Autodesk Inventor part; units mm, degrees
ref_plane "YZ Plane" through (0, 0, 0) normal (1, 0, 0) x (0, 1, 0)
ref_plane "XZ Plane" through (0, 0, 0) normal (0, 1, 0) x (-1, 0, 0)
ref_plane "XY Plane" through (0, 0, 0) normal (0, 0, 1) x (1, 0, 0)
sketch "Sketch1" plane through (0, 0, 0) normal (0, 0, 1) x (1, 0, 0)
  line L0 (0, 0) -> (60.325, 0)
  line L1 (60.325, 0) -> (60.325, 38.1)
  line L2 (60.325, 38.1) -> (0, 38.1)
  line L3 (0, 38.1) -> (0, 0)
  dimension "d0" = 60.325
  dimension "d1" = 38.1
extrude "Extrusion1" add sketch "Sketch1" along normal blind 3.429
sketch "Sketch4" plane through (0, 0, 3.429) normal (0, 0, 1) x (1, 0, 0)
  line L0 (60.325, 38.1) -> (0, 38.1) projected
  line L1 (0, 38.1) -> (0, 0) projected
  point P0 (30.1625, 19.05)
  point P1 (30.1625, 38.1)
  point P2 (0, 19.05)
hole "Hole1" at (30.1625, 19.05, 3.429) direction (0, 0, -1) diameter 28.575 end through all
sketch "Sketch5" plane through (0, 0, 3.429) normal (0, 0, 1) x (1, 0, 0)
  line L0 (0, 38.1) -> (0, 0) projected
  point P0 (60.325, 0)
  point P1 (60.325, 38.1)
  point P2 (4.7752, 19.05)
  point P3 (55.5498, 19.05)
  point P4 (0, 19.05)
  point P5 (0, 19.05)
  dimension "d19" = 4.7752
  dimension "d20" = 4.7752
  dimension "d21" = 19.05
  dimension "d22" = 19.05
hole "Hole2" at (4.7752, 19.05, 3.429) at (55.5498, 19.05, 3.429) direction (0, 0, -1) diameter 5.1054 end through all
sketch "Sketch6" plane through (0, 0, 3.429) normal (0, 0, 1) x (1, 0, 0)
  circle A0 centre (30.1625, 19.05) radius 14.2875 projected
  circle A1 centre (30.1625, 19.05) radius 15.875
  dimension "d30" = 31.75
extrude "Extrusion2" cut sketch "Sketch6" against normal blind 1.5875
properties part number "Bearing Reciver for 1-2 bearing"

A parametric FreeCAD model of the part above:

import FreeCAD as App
import Part
import Sketcher
Q = App.Units.Quantity


def add_polygon(sketch, points):
    """Adds a closed chain of lines whose ends are joined by coincident constraints."""
    first, n = sketch.GeometryCount, len(points)
    for a, b in zip(points, points[1:] + points[:1]):
        sketch.addGeometry(Part.LineSegment(App.Vector(*a, 0), App.Vector(*b, 0)), False)
    for i in range(n):
        sketch.addConstraint(Sketcher.Constraint("Coincident", first + i, 2, first + (i + 1) % n, 1))

doc = App.newDocument("Part")
body = doc.addObject("PartDesign::Body", "Body")

# Sketch on XY plane
sketch1 = doc.addObject("Sketcher::SketchObject", "Sketch")
body.addObject(sketch1)
sketch1.AttachmentSupport = (doc.XY_Plane, [""])
sketch1.MapMode = "FlatFace"
add_polygon(sketch1, [(0, 38), (0, 0), (60, 0), (60, 38)])  # lines 0-3
sketch1.addConstraint([
    Sketcher.Constraint("Vertical", 0),
    Sketcher.Constraint("Horizontal", 1),
    Sketcher.Constraint("Vertical", 2),
    Sketcher.Constraint("Horizontal", 3),
    Sketcher.Constraint("Coincident", 0, 2, -1, 1),
    Sketcher.Constraint("DistanceY", 0, 2, 0, 1, Q("1.5 in")),
    Sketcher.Constraint("DistanceX", 1, 1, 1, 2, Q("2.375 in")),
])
pad1 = doc.addObject("PartDesign::Pad", "Pad")
body.addObject(pad1)
pad1.Profile = sketch1
pad1.Length = Q("0.135 in")

# Sketch on XY plane
sketch2 = doc.addObject("Sketcher::SketchObject", "Sketch001")
body.addObject(sketch2)
sketch2.AttachmentSupport = (doc.XY_Plane, [""])
sketch2.MapMode = "FlatFace"
sketch2.AttachmentOffset = App.Placement(App.Vector(0, 0, 0.135 * 25.4), App.Rotation())
sketch2.addGeometry(Part.Circle(App.Vector(30, 19, 0), App.Vector(0, 0, 1), 14), False)
sketch2.addConstraint([
    Sketcher.Constraint("Diameter", 0, Q("1.125 in")),
    Sketcher.Constraint("DistanceY", -1, 1, 0, 3, Q("0.75 in")),
    Sketcher.Constraint("DistanceX", -1, 1, 0, 3, Q("1.1875 in")),
])
doc.recompute()
hole = doc.addObject("PartDesign::Hole", "Hole")
body.addObject(hole)
hole.Profile = sketch2
hole.ThreadType = "None"
hole.Diameter = Q("1.125 in")
hole.DepthType = "ThroughAll"

# Sketch on XY plane
sketch3 = doc.addObject("Sketcher::SketchObject", "Sketch002")
body.addObject(sketch3)
sketch3.AttachmentSupport = (doc.XY_Plane, [""])
sketch3.MapMode = "FlatFace"
sketch3.AttachmentOffset = App.Placement(App.Vector(0, 0, 0.135 * 25.4), App.Rotation())
sketch3.addGeometry([
    Part.Circle(App.Vector(4.8, 19.1, 0), App.Vector(0, 0, 1), 2.6),
    Part.Circle(App.Vector(55.5, 19.1, 0), App.Vector(0, 0, 1), 2.6),
], False)
sketch3.addConstraint([
    Sketcher.Constraint("Equal", 0, 1),
    Sketcher.Constraint("Horizontal", 0, 3, 1, 3),
    Sketcher.Constraint("Diameter", 0, Q("0.201 in")),
    Sketcher.Constraint("DistanceY", -1, 1, 0, 3, Q("0.75 in")),
    Sketcher.Constraint("DistanceX", -1, 1, 0, 3, Q("0.188 in")),
    Sketcher.Constraint("DistanceX", -1, 1, 1, 3, Q("2.187 in")),
])
doc.recompute()
hole2 = doc.addObject("PartDesign::Hole", "Hole001")
body.addObject(hole2)
hole2.Profile = sketch3
hole2.ThreadType = "None"
hole2.Diameter = Q("0.201 in")
hole2.DepthType = "ThroughAll"

# Sketch on XY plane
sketch4 = doc.addObject("Sketcher::SketchObject", "Sketch003")
body.addObject(sketch4)
sketch4.AttachmentSupport = (doc.XY_Plane, [""])
sketch4.MapMode = "FlatFace"
sketch4.AttachmentOffset = App.Placement(App.Vector(0, 0, 0.135 * 25.4), App.Rotation())
sketch4.addGeometry([
    Part.Circle(App.Vector(30, 19, 0), App.Vector(0, 0, 1), 16),
    Part.Circle(App.Vector(30, 19, 0), App.Vector(0, 0, 1), 14),
], False)
sketch4.addConstraint([
    Sketcher.Constraint("Coincident", 1, 3, 0, 3),
    Sketcher.Constraint("Diameter", 0, Q("1.25 in")),
    Sketcher.Constraint("Diameter", 1, Q("1.125 in")),
    Sketcher.Constraint("DistanceY", -1, 1, 0, 3, Q("0.75 in")),
    Sketcher.Constraint("DistanceX", -1, 1, 0, 3, Q("1.1875 in")),
])
pocket1 = doc.addObject("PartDesign::Pocket", "Pocket")
body.addObject(pocket1)
pocket1.Profile = sketch4
pocket1.Length = Q("0.0625 in")

doc.recompute()
